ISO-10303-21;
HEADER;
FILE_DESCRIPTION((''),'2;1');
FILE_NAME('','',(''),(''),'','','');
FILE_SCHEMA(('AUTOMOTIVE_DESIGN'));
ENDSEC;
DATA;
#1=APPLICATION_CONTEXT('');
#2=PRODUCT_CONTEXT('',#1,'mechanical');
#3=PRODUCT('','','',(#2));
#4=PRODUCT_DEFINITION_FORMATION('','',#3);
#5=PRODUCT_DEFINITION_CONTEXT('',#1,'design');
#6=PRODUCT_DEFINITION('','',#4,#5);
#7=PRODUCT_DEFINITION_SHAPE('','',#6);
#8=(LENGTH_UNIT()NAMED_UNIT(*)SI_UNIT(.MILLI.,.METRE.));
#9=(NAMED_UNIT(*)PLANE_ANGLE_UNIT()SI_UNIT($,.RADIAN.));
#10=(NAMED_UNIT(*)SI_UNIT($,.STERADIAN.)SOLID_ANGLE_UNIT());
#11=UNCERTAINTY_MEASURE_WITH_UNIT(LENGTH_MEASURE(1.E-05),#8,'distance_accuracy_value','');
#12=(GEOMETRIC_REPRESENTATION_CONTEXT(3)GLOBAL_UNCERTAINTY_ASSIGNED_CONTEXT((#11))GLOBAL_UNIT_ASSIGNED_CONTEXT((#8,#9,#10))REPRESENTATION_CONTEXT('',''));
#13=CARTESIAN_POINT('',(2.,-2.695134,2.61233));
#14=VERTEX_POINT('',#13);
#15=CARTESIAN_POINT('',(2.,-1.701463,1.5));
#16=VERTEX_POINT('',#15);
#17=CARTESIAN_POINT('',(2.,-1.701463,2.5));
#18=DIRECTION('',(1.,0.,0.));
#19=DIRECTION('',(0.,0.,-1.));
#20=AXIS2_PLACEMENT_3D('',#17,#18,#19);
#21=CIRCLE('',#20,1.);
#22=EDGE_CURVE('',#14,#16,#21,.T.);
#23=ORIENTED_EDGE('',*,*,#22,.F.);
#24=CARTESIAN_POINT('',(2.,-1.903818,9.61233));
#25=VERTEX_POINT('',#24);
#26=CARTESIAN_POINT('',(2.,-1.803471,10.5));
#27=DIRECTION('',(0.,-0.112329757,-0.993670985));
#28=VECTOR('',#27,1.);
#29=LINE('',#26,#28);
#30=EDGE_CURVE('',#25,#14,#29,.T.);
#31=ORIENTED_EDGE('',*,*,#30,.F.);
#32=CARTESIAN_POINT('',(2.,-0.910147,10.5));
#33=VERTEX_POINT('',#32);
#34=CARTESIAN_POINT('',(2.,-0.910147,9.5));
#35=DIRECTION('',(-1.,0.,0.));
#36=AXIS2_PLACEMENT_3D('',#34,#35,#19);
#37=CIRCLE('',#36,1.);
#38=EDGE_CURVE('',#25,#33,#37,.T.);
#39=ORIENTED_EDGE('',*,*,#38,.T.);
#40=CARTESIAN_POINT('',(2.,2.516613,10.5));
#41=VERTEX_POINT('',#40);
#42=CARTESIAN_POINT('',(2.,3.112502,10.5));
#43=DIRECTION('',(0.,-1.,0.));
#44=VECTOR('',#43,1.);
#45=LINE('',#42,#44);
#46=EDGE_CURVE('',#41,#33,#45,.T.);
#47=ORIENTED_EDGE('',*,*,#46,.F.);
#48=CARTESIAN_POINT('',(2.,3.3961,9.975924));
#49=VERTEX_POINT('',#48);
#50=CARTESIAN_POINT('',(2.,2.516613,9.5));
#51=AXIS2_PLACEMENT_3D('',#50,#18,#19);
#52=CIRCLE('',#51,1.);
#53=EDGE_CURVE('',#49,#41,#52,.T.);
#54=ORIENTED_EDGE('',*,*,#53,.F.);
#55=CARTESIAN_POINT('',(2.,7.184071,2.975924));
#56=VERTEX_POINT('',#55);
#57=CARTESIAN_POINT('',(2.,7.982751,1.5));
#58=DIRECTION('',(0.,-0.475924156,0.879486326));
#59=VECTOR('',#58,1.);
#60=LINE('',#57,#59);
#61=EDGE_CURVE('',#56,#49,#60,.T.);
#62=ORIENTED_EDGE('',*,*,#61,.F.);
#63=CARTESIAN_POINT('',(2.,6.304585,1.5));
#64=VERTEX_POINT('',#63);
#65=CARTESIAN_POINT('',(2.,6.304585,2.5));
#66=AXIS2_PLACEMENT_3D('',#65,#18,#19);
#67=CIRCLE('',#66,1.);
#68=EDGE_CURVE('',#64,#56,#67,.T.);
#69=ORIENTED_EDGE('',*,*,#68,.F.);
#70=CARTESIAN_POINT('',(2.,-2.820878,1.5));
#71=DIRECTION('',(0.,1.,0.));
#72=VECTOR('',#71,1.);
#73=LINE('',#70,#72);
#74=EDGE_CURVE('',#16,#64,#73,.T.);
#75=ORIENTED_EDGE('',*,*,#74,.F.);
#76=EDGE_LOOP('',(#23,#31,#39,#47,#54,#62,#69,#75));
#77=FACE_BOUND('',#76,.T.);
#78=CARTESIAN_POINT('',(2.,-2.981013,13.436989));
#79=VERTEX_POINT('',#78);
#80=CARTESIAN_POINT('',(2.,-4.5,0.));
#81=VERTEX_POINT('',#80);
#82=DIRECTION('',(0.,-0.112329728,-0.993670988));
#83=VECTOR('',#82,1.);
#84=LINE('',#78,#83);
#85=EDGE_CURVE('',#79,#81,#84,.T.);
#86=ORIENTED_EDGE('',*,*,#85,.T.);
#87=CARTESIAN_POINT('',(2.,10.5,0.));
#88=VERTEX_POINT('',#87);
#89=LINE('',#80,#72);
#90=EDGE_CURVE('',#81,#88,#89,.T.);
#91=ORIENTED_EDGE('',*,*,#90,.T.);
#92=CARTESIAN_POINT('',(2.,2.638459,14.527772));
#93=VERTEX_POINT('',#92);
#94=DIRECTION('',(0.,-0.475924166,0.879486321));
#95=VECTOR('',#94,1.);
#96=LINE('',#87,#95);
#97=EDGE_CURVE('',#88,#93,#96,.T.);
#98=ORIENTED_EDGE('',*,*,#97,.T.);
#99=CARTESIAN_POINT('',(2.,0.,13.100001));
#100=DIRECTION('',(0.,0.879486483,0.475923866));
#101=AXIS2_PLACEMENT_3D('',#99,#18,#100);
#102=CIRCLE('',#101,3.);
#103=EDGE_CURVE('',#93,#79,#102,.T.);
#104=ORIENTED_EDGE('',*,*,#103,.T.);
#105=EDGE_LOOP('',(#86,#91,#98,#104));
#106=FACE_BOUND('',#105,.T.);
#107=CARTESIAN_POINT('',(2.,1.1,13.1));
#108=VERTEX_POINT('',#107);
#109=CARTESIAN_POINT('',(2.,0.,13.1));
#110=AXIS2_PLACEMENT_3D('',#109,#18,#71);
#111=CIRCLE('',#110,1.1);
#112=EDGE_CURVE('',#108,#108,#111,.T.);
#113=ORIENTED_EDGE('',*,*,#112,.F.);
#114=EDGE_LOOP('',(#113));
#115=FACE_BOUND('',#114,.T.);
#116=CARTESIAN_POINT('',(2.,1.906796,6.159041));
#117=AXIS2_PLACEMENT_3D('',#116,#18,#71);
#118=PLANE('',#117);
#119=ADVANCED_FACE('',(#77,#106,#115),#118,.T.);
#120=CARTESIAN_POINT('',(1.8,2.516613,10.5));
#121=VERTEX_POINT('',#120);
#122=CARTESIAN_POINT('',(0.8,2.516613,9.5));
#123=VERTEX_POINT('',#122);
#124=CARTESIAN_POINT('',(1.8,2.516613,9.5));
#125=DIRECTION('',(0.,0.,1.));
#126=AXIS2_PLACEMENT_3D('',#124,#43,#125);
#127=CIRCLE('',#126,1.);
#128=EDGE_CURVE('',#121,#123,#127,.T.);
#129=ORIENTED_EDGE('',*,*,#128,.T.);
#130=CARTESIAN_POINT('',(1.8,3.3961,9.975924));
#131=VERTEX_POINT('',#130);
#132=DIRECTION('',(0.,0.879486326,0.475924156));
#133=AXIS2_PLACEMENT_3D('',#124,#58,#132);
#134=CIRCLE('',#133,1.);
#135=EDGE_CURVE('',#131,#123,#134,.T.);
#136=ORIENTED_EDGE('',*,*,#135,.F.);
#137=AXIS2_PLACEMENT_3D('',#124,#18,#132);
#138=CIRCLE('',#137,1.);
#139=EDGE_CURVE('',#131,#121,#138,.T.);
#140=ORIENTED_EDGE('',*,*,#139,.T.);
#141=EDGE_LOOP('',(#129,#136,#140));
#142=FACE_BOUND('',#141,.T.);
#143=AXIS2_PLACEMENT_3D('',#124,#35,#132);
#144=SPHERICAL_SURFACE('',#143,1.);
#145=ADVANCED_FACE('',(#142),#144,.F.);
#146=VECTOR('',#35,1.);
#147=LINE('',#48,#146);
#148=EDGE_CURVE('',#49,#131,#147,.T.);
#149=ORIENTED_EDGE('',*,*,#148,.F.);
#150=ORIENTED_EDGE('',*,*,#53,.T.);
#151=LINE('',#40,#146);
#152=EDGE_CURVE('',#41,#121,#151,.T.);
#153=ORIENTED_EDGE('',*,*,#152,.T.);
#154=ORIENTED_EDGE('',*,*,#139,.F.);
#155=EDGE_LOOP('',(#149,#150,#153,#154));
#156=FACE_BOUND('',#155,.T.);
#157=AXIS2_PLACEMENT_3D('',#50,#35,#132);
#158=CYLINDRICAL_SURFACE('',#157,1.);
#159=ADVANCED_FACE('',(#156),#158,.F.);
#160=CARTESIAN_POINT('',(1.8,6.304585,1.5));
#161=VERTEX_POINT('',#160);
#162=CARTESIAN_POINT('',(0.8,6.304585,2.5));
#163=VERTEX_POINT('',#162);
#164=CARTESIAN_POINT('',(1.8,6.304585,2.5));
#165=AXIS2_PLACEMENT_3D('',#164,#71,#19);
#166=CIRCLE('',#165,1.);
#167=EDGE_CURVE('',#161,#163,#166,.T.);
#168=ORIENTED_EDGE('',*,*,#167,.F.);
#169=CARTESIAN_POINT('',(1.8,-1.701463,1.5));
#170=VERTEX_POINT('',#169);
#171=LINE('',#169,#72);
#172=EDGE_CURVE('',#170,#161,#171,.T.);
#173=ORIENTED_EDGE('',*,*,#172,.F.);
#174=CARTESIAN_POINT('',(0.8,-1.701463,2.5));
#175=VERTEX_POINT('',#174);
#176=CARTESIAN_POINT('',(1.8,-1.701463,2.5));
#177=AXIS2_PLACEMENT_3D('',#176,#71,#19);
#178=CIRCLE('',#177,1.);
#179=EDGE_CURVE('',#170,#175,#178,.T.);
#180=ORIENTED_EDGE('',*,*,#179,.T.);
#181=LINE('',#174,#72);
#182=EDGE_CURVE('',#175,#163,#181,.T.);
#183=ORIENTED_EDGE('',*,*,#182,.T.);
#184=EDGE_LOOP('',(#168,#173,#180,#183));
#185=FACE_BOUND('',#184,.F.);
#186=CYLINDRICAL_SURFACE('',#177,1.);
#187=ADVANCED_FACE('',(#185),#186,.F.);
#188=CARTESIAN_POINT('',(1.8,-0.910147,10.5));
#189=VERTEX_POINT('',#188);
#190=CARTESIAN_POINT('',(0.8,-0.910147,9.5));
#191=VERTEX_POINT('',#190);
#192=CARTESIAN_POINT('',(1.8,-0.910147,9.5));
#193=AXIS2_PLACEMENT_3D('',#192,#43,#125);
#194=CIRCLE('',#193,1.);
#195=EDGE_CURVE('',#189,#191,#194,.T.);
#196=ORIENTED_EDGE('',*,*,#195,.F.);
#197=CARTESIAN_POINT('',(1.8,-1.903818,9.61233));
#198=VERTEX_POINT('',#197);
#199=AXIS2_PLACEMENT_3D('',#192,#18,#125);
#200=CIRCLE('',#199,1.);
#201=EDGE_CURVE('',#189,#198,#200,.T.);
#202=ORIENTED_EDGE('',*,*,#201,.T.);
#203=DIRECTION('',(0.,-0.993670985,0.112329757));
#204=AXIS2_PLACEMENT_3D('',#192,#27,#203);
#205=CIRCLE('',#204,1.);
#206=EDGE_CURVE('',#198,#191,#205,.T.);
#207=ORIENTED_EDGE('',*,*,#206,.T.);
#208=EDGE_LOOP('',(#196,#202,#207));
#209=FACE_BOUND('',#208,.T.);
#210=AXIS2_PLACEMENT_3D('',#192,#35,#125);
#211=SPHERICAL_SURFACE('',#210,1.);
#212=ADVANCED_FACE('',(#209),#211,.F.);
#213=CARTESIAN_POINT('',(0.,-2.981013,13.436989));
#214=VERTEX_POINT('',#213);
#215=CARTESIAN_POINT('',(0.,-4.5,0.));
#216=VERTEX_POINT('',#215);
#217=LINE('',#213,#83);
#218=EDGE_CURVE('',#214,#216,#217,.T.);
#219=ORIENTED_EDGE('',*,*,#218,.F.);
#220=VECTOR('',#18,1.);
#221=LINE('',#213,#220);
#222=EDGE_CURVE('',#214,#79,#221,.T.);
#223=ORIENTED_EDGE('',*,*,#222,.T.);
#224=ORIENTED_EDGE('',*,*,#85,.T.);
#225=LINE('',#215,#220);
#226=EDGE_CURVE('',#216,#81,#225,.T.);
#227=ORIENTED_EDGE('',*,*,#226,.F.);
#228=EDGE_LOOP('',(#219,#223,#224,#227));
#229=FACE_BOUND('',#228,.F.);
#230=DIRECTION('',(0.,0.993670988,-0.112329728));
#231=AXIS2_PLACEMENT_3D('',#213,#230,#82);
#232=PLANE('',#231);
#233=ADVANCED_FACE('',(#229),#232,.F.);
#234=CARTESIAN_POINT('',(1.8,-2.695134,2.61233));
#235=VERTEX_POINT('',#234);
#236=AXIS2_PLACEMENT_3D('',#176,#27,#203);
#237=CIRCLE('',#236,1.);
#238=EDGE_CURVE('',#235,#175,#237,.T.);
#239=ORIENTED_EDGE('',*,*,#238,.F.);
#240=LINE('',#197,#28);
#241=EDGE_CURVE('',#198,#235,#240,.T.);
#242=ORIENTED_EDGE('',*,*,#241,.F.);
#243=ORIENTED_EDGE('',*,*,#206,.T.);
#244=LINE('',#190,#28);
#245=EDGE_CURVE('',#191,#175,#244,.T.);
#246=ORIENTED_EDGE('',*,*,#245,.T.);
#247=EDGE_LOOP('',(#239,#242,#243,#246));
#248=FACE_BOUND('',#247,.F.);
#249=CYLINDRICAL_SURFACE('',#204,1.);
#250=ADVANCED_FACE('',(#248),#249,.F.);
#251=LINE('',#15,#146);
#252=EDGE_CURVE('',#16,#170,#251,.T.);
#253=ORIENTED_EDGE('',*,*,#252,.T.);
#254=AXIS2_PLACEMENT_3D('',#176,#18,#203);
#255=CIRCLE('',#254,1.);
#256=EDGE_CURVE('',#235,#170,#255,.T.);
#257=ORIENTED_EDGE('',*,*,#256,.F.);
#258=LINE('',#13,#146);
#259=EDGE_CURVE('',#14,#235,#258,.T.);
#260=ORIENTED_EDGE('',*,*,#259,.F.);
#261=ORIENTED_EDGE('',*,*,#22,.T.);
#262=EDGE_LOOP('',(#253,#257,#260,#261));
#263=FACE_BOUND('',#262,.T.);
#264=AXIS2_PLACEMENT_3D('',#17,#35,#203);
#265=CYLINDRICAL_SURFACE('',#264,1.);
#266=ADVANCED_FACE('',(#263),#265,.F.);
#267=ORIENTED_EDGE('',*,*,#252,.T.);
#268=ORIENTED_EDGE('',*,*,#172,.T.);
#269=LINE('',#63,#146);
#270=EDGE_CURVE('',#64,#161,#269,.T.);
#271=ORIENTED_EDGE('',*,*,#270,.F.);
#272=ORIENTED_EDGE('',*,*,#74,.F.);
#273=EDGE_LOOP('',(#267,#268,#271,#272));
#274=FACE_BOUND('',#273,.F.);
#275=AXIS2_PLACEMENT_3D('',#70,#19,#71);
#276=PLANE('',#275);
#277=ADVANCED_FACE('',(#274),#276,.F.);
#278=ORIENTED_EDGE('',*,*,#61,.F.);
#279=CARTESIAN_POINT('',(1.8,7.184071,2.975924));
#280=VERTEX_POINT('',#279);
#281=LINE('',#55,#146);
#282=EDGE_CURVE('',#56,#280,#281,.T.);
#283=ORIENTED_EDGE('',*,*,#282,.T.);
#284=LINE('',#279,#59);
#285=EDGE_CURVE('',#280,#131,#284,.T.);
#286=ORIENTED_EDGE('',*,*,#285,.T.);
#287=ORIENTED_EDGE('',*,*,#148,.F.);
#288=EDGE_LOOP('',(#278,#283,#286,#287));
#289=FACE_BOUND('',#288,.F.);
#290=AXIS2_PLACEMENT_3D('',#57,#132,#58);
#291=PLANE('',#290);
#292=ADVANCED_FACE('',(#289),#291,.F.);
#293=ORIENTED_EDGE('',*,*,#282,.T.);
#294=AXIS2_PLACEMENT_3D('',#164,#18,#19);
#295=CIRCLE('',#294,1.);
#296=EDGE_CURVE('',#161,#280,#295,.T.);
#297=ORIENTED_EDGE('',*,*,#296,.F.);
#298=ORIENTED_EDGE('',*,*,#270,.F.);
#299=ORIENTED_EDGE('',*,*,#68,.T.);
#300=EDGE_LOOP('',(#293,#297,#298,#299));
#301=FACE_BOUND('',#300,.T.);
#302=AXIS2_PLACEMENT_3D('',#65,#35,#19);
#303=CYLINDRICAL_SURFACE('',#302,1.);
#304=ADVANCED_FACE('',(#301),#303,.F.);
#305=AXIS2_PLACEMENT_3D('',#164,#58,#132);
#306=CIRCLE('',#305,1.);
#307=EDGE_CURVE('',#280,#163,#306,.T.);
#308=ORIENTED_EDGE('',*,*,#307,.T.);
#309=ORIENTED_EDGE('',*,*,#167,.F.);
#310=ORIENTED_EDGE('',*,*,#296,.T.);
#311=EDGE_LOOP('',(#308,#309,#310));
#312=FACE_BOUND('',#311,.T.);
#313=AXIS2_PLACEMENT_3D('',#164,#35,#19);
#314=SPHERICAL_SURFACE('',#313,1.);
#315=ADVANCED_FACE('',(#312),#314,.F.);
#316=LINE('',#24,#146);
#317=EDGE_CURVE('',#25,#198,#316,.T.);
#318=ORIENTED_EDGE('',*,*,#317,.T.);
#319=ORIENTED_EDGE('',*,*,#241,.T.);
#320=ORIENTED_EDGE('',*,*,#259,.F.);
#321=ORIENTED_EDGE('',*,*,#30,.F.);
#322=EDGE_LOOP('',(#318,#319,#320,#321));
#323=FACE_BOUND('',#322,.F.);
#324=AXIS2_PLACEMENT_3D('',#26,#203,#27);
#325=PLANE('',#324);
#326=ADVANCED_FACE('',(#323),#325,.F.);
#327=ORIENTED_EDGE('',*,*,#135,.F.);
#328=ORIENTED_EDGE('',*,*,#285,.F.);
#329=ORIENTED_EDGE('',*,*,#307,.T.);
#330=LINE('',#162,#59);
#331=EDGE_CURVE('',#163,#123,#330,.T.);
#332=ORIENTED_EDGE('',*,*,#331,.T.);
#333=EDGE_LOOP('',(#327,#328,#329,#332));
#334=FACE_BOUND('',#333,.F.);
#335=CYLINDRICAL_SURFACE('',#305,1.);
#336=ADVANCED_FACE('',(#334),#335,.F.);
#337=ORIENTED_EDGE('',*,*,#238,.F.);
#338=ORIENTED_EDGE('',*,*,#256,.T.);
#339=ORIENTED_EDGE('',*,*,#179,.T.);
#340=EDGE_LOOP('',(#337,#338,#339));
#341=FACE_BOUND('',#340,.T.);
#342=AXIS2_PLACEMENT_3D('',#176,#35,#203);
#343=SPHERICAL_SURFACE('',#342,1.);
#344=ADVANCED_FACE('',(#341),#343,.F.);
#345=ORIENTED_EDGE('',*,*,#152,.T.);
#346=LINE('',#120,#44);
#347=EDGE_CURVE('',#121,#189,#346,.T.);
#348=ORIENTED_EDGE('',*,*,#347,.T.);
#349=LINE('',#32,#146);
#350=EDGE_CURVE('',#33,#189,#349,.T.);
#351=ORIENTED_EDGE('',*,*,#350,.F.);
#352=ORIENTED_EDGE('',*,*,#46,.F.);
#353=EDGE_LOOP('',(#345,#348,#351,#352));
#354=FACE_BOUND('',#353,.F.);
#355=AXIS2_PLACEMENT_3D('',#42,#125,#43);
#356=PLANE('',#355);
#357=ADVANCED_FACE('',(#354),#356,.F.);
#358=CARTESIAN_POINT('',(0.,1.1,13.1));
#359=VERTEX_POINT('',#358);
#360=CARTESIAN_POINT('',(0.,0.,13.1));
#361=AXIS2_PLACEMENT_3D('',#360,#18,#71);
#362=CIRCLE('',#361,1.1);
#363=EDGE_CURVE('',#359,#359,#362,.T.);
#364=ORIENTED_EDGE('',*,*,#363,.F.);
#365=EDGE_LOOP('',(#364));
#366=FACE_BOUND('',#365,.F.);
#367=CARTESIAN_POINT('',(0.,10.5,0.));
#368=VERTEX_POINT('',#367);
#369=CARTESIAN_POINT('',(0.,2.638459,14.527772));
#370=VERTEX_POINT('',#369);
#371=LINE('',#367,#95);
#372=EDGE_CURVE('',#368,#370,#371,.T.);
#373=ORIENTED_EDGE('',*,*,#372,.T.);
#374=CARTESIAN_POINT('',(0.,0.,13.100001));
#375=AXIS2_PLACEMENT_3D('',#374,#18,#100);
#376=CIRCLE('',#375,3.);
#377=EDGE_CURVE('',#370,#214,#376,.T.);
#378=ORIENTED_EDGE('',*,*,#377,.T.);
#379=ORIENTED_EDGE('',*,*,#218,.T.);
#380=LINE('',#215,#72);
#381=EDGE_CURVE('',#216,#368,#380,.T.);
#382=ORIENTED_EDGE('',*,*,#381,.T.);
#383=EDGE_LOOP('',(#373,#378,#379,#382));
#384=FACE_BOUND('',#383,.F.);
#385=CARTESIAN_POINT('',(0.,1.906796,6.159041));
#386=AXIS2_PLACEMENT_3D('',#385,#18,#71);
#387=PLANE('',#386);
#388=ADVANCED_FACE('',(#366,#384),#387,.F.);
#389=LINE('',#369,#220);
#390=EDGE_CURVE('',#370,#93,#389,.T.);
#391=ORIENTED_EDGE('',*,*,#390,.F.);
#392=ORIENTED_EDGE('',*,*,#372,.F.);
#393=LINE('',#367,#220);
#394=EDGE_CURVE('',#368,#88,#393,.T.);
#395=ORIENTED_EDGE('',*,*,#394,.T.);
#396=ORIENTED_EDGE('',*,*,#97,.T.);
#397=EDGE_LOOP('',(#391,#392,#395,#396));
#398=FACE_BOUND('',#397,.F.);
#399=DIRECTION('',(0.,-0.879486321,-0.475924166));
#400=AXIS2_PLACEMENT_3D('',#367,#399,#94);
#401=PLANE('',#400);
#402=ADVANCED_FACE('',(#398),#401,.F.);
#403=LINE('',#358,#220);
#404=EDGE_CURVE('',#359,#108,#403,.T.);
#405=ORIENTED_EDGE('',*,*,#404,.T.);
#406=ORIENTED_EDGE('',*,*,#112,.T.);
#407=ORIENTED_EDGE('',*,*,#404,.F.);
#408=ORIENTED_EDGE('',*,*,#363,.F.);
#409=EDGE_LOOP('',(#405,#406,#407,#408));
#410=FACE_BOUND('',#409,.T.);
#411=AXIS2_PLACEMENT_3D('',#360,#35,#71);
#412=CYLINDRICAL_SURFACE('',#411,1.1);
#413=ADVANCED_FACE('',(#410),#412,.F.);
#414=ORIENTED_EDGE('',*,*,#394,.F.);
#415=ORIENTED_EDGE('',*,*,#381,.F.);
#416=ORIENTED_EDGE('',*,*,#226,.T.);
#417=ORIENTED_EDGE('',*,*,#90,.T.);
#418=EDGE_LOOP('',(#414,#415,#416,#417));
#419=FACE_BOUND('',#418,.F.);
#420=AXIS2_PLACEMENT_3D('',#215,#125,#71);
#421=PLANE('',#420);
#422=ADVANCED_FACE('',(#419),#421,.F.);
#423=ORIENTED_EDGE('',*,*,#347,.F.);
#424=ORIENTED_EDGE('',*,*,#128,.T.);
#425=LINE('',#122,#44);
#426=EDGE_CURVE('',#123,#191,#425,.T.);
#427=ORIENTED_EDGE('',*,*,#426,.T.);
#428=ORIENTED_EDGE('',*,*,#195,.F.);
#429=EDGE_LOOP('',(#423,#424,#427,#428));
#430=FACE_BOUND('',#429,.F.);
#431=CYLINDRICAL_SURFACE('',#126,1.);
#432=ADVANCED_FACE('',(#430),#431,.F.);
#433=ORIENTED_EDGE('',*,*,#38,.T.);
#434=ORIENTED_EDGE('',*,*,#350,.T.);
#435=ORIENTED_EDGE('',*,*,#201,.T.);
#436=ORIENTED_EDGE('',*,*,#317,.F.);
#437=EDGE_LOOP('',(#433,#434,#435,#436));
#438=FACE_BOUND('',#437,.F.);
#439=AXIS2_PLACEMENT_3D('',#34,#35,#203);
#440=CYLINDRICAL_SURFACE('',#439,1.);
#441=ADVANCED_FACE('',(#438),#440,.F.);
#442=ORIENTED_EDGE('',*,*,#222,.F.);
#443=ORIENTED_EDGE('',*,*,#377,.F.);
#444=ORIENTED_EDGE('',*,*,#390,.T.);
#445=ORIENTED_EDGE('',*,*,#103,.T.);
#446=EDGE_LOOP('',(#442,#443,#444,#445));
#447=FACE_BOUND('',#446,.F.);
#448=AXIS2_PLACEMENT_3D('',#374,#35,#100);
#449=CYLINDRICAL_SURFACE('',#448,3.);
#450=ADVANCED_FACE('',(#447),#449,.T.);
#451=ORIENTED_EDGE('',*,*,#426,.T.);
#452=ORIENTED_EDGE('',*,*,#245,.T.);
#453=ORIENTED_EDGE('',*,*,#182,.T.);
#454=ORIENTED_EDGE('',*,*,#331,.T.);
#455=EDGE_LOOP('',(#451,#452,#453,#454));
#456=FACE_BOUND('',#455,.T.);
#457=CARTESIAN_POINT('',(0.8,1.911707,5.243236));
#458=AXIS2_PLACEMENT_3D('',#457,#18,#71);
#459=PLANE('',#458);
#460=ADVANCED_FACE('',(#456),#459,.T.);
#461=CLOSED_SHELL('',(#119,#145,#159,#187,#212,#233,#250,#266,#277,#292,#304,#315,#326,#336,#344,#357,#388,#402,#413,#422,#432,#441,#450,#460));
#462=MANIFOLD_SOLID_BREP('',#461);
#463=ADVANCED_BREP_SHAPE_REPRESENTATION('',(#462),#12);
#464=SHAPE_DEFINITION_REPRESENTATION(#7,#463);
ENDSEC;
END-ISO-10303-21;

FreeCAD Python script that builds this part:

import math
import FreeCAD as App
import Part
import Sketcher
from FreeCAD import Vector


def edges_at(feature, points):
    """Names of the edges that pass closest to the given points."""
    edges = feature.Shape.Edges
    near = lambda p: min(range(len(edges)), key=lambda i: edges[i].distToShape(Part.Vertex(*p))[0])
    return sorted({f"Edge{near(p) + 1}" for p in points})

doc = App.newDocument("Part")
params = doc.addObject("Spreadsheet::Sheet", "Params")
for row, (alias, value) in enumerate([
    ("sketch1_radius", "3 mm"),
    ("sketch1_diameter", "2.2 mm"),
    ("sketch1_width", "15 mm"),
    ("pad1_length", "2 mm"),
    ("pocket1_length", "1.2 mm"),
    ("fillet_radius", "1 mm"),
    ("fillet2_radius", "1 mm"),
], start=1):
    params.set(f"A{row}", alias)
    params.set(f"B{row}", "=" + value)
    params.setAlias(f"B{row}", alias)

body = doc.addObject("PartDesign::Body", "Body")

# Sketch on YZ plane
sketch1 = body.newObject("Sketcher::SketchObject", "Sketch")
sketch1.AttachmentSupport = (doc.getObject("YZ_Plane"), [""])
sketch1.MapMode = "FlatFace"
sketch1.addGeometry([
    Part.LineSegment(Vector(-4.5, 0, 0), Vector(10.5, 0, 0)),  # 0
    Part.LineSegment(Vector(10.5, 0, 0), Vector(2.6, 14.5, 0)),  # 1
    Part.ArcOfCircle(Part.Circle(Vector(0, 13.1, 0), Vector(0, 0, 1), 3), math.radians(28), math.radians(174)),  # 2
    Part.LineSegment(Vector(-3, 13.4, 0), Vector(-4.5, 0, 0)),  # 3
    Part.Circle(Vector(0, 13.1, 0), Vector(0, 0, 1), 1.1),  # 4
], False)
sketch1.addConstraint([
    Sketcher.Constraint("Coincident", 0, 2, 1, 1),
    Sketcher.Constraint("Tangent", 1, 2, 2, 1),
    Sketcher.Constraint("Tangent", 2, 2, 3, 1),
    Sketcher.Constraint("Coincident", 3, 2, 0, 1),
    Sketcher.Constraint("Horizontal", 0),
    Sketcher.Constraint("Coincident", 4, 3, 2, 3),
    Sketcher.Constraint("PointOnObject", 2, 3, -2),
    Sketcher.Constraint("PointOnObject", 0, 2, -1),
    Sketcher.Constraint("Radius", 2, 3.0),
    Sketcher.Constraint("Diameter", 4, 2.2),
    Sketcher.Constraint("DistanceX", 0, 1, 0, 2, 15.0),
    Sketcher.Constraint("DistanceY", -1, 1, 2, 3, 13.100001),
    Sketcher.Constraint("DistanceX", -1, 1, 0, 2, 10.5),
])
sketch1.setExpression("Constraints[8]", "Params.sketch1_radius")
sketch1.setExpression("Constraints[9]", "Params.sketch1_diameter")
sketch1.setExpression("Constraints[10]", "Params.sketch1_width")
pad1 = body.newObject("PartDesign::Pad", "Pad")
pad1.Profile = sketch1
pad1.setExpression("Length", "Params.pad1_length")

# Sketch on YZ plane
sketch2 = body.newObject("Sketcher::SketchObject", "Sketch001")
sketch2.AttachmentSupport = (doc.getObject("YZ_Plane"), [""])
sketch2.MapMode = "FlatFace"
sketch2.AttachmentOffset = App.Placement(Vector(0, 0, 2), App.Rotation())
sketch2.addGeometry([
    Part.LineSegment(Vector(-1.8, 10.5, 0), Vector(-2.8, 1.5, 0)),
    Part.LineSegment(Vector(-2.8, 1.5, 0), Vector(8, 1.5, 0)),
    Part.LineSegment(Vector(8, 1.5, 0), Vector(3.1, 10.5, 0)),
    Part.LineSegment(Vector(3.1, 10.5, 0), Vector(-1.8, 10.5, 0)),
], False)
sketch2.addConstraint([
    Sketcher.Constraint("Coincident", 0, 2, 1, 1),
    Sketcher.Constraint("Coincident", 1, 2, 2, 1),
    Sketcher.Constraint("Coincident", 2, 2, 3, 1),
    Sketcher.Constraint("Coincident", 3, 2, 0, 1),
    Sketcher.Constraint("Horizontal", 1),
    Sketcher.Constraint("Horizontal", 3),
    Sketcher.Constraint("DistanceY", 1, 2, 2, 2, 9.0),
    Sketcher.Constraint("DistanceY", -1, 1, 0, 2, 1.5),
    Sketcher.Constraint("DistanceX", 1, 1, 1, 2, 10.803629),
    Sketcher.Constraint("DistanceX", 3, 2, 3, 1, 4.915973),
    Sketcher.Constraint("DistanceX", 0, 2, -1, 1, 2.820878),
    Sketcher.Constraint("DistanceX", 3, 2, -1, 1, 1.803471),
])
pocket1 = body.newObject("PartDesign::Pocket", "Pocket")
pocket1.Profile = sketch2
pocket1.setExpression("Length", "Params.pocket1_length")
doc.recompute()

fillet = body.newObject("PartDesign::Fillet", "Fillet")
fillet.Base = (pocket1, edges_at(pocket1, [
    (1.4, -1.803, 10.5),
    (1.4, 3.113, 10.5),
    (1.4, 7.983, 1.5),
    (1.4, -2.821, 1.5),
]))
fillet.setExpression("Radius", "Params.fillet_radius")
doc.recompute()

fillet2 = body.newObject("PartDesign::Fillet", "Fillet001")
fillet2.Base = (fillet, edges_at(fillet, [
    (0.8, 2.302, 1.5),
    (0.8, -2.447, 1.834),
    (0.8, 7.164, 1.988),
    (0.8, -2.299, 6.112),
    (0.8, 5.29, 6.476),
    (0.8, -1.576, 10.246),
    (0.8, 3.029, 10.359),
    (0.8, 0.803, 10.5),
]))
fillet2.setExpression("Radius", "Params.fillet2_radius")

doc.recompute()
